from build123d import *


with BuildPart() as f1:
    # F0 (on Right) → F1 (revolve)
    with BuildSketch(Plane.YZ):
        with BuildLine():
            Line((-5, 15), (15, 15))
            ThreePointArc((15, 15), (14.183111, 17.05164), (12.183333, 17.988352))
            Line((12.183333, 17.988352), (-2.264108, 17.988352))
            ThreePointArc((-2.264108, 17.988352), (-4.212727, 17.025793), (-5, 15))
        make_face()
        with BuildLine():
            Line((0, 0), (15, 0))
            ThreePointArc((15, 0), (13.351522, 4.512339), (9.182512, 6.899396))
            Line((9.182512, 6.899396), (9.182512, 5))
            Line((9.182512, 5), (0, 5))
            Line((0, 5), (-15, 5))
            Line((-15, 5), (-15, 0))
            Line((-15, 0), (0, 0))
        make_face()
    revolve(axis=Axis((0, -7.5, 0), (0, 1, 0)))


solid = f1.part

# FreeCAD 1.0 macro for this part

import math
import FreeCAD as App
import Part
import Sketcher

V = App.Vector
Q = App.Units.Quantity

doc = App.newDocument("Part")
body = doc.addObject("PartDesign::Body", "Body")
body.AllowCompound = True

# Sketch on YZ plane
sketch1 = body.newObject("Sketcher::SketchObject", "Sketch")
sketch1.AttachmentSupport = (doc.getObject("YZ_Plane"), [""])
sketch1.MapMode = "FlatFace"
sketch1.addGeometry([
    Part.LineSegment(V(-5, 15, 0), V(15, 15, 0)),  # 0
    Part.ArcOfCircle(Part.Circle(V(12.000006, 14.993958, 0), V(0, 0, 1), 3), math.radians(0.115385), math.radians(86.496526)),  # 1
    Part.LineSegment(V(12.183333, 17.988352, 0), V(-2.264108, 17.988352, 0)),  # 2
    Part.ArcOfCircle(Part.Circle(V(-1.999999, 14.999999, 0), V(0, 0, 1), 3.000001), math.radians(95.05065), math.radians(179.999982)),  # 3
    Part.ArcOfCircle(Part.Circle(V(7.999998, -0.000002, 0), V(0, 0, 1), 7.000002), math.radians(0.000014), math.radians(80.274356)),  # 4
    Part.LineSegment(V(9.182512, 6.899396, 0), V(9.182512, 5, 0)),  # 5
    Part.LineSegment(V(9.182512, 5, 0), V(-15, 5, 0)),  # 6
    Part.LineSegment(V(-15, 5, 0), V(-15, 0, 0)),  # 7
    Part.LineSegment(V(-15, 0, 0), V(15, 0, 0)),  # 8
], False)
sketch1.addConstraint([
    Sketcher.Constraint("Coincident", 0, 2, 1, 1),
    Sketcher.Constraint("Coincident", 1, 2, 2, 1),
    Sketcher.Constraint("Coincident", 2, 2, 3, 1),
    Sketcher.Constraint("Coincident", 3, 2, 0, 1),
    Sketcher.Constraint("Coincident", 4, 2, 5, 1),
    Sketcher.Constraint("Coincident", 5, 2, 6, 1),
    Sketcher.Constraint("Coincident", 6, 2, 7, 1),
    Sketcher.Constraint("Coincident", 7, 2, 8, 1),
    Sketcher.Constraint("Coincident", 8, 2, 4, 1),
    Sketcher.Constraint("Horizontal", 0),
    Sketcher.Constraint("Horizontal", 2),
    Sketcher.Constraint("Vertical", 5),
    Sketcher.Constraint("Horizontal", 6),
    Sketcher.Constraint("Vertical", 7),
    Sketcher.Constraint("Horizontal", 8),
    Sketcher.Constraint("Equal", 1, 3),
    Sketcher.Constraint("Symmetric", 7, 2, 8, 2, -1, 1),
    Sketcher.Constraint("PointOnObject", 4, 3, -1),
    Sketcher.Constraint("Horizontal", 3, 3, 0, 2),
    Sketcher.Constraint("Vertical", 0, 2, 8, 2),
    Sketcher.Constraint("Radius", 1, Q("3 mm")),
    Sketcher.Constraint("DistanceX", 0, 1, 0, 2, Q("20 mm")),
    Sketcher.Constraint("DistanceX", 8, 1, 8, 2, Q("30 mm")),
    Sketcher.Constraint("DistanceY", 7, 2, 7, 1, Q("5 mm")),
    Sketcher.Constraint("DistanceY", -1, 1, 3, 3, Q("14.999999 mm")),
    Sketcher.Constraint("Radius", 4, Q("7.000002 mm")),
    Sketcher.Constraint("DistanceX", 2, 2, 2, 1, Q("14.447441 mm")),
    Sketcher.Constraint("DistanceX", 6, 2, 6, 1, Q("24.182512 mm")),
    Sketcher.Constraint("DistanceY", -1, 1, 1, 3, Q("14.993958 mm")),
])
revolution = body.newObject("PartDesign::Revolution", "Revolution")
revolution.Profile = sketch1
revolution.ReferenceAxis = (sketch1, ["H_Axis"])
revolution.Angle = 360

doc.recompute()
